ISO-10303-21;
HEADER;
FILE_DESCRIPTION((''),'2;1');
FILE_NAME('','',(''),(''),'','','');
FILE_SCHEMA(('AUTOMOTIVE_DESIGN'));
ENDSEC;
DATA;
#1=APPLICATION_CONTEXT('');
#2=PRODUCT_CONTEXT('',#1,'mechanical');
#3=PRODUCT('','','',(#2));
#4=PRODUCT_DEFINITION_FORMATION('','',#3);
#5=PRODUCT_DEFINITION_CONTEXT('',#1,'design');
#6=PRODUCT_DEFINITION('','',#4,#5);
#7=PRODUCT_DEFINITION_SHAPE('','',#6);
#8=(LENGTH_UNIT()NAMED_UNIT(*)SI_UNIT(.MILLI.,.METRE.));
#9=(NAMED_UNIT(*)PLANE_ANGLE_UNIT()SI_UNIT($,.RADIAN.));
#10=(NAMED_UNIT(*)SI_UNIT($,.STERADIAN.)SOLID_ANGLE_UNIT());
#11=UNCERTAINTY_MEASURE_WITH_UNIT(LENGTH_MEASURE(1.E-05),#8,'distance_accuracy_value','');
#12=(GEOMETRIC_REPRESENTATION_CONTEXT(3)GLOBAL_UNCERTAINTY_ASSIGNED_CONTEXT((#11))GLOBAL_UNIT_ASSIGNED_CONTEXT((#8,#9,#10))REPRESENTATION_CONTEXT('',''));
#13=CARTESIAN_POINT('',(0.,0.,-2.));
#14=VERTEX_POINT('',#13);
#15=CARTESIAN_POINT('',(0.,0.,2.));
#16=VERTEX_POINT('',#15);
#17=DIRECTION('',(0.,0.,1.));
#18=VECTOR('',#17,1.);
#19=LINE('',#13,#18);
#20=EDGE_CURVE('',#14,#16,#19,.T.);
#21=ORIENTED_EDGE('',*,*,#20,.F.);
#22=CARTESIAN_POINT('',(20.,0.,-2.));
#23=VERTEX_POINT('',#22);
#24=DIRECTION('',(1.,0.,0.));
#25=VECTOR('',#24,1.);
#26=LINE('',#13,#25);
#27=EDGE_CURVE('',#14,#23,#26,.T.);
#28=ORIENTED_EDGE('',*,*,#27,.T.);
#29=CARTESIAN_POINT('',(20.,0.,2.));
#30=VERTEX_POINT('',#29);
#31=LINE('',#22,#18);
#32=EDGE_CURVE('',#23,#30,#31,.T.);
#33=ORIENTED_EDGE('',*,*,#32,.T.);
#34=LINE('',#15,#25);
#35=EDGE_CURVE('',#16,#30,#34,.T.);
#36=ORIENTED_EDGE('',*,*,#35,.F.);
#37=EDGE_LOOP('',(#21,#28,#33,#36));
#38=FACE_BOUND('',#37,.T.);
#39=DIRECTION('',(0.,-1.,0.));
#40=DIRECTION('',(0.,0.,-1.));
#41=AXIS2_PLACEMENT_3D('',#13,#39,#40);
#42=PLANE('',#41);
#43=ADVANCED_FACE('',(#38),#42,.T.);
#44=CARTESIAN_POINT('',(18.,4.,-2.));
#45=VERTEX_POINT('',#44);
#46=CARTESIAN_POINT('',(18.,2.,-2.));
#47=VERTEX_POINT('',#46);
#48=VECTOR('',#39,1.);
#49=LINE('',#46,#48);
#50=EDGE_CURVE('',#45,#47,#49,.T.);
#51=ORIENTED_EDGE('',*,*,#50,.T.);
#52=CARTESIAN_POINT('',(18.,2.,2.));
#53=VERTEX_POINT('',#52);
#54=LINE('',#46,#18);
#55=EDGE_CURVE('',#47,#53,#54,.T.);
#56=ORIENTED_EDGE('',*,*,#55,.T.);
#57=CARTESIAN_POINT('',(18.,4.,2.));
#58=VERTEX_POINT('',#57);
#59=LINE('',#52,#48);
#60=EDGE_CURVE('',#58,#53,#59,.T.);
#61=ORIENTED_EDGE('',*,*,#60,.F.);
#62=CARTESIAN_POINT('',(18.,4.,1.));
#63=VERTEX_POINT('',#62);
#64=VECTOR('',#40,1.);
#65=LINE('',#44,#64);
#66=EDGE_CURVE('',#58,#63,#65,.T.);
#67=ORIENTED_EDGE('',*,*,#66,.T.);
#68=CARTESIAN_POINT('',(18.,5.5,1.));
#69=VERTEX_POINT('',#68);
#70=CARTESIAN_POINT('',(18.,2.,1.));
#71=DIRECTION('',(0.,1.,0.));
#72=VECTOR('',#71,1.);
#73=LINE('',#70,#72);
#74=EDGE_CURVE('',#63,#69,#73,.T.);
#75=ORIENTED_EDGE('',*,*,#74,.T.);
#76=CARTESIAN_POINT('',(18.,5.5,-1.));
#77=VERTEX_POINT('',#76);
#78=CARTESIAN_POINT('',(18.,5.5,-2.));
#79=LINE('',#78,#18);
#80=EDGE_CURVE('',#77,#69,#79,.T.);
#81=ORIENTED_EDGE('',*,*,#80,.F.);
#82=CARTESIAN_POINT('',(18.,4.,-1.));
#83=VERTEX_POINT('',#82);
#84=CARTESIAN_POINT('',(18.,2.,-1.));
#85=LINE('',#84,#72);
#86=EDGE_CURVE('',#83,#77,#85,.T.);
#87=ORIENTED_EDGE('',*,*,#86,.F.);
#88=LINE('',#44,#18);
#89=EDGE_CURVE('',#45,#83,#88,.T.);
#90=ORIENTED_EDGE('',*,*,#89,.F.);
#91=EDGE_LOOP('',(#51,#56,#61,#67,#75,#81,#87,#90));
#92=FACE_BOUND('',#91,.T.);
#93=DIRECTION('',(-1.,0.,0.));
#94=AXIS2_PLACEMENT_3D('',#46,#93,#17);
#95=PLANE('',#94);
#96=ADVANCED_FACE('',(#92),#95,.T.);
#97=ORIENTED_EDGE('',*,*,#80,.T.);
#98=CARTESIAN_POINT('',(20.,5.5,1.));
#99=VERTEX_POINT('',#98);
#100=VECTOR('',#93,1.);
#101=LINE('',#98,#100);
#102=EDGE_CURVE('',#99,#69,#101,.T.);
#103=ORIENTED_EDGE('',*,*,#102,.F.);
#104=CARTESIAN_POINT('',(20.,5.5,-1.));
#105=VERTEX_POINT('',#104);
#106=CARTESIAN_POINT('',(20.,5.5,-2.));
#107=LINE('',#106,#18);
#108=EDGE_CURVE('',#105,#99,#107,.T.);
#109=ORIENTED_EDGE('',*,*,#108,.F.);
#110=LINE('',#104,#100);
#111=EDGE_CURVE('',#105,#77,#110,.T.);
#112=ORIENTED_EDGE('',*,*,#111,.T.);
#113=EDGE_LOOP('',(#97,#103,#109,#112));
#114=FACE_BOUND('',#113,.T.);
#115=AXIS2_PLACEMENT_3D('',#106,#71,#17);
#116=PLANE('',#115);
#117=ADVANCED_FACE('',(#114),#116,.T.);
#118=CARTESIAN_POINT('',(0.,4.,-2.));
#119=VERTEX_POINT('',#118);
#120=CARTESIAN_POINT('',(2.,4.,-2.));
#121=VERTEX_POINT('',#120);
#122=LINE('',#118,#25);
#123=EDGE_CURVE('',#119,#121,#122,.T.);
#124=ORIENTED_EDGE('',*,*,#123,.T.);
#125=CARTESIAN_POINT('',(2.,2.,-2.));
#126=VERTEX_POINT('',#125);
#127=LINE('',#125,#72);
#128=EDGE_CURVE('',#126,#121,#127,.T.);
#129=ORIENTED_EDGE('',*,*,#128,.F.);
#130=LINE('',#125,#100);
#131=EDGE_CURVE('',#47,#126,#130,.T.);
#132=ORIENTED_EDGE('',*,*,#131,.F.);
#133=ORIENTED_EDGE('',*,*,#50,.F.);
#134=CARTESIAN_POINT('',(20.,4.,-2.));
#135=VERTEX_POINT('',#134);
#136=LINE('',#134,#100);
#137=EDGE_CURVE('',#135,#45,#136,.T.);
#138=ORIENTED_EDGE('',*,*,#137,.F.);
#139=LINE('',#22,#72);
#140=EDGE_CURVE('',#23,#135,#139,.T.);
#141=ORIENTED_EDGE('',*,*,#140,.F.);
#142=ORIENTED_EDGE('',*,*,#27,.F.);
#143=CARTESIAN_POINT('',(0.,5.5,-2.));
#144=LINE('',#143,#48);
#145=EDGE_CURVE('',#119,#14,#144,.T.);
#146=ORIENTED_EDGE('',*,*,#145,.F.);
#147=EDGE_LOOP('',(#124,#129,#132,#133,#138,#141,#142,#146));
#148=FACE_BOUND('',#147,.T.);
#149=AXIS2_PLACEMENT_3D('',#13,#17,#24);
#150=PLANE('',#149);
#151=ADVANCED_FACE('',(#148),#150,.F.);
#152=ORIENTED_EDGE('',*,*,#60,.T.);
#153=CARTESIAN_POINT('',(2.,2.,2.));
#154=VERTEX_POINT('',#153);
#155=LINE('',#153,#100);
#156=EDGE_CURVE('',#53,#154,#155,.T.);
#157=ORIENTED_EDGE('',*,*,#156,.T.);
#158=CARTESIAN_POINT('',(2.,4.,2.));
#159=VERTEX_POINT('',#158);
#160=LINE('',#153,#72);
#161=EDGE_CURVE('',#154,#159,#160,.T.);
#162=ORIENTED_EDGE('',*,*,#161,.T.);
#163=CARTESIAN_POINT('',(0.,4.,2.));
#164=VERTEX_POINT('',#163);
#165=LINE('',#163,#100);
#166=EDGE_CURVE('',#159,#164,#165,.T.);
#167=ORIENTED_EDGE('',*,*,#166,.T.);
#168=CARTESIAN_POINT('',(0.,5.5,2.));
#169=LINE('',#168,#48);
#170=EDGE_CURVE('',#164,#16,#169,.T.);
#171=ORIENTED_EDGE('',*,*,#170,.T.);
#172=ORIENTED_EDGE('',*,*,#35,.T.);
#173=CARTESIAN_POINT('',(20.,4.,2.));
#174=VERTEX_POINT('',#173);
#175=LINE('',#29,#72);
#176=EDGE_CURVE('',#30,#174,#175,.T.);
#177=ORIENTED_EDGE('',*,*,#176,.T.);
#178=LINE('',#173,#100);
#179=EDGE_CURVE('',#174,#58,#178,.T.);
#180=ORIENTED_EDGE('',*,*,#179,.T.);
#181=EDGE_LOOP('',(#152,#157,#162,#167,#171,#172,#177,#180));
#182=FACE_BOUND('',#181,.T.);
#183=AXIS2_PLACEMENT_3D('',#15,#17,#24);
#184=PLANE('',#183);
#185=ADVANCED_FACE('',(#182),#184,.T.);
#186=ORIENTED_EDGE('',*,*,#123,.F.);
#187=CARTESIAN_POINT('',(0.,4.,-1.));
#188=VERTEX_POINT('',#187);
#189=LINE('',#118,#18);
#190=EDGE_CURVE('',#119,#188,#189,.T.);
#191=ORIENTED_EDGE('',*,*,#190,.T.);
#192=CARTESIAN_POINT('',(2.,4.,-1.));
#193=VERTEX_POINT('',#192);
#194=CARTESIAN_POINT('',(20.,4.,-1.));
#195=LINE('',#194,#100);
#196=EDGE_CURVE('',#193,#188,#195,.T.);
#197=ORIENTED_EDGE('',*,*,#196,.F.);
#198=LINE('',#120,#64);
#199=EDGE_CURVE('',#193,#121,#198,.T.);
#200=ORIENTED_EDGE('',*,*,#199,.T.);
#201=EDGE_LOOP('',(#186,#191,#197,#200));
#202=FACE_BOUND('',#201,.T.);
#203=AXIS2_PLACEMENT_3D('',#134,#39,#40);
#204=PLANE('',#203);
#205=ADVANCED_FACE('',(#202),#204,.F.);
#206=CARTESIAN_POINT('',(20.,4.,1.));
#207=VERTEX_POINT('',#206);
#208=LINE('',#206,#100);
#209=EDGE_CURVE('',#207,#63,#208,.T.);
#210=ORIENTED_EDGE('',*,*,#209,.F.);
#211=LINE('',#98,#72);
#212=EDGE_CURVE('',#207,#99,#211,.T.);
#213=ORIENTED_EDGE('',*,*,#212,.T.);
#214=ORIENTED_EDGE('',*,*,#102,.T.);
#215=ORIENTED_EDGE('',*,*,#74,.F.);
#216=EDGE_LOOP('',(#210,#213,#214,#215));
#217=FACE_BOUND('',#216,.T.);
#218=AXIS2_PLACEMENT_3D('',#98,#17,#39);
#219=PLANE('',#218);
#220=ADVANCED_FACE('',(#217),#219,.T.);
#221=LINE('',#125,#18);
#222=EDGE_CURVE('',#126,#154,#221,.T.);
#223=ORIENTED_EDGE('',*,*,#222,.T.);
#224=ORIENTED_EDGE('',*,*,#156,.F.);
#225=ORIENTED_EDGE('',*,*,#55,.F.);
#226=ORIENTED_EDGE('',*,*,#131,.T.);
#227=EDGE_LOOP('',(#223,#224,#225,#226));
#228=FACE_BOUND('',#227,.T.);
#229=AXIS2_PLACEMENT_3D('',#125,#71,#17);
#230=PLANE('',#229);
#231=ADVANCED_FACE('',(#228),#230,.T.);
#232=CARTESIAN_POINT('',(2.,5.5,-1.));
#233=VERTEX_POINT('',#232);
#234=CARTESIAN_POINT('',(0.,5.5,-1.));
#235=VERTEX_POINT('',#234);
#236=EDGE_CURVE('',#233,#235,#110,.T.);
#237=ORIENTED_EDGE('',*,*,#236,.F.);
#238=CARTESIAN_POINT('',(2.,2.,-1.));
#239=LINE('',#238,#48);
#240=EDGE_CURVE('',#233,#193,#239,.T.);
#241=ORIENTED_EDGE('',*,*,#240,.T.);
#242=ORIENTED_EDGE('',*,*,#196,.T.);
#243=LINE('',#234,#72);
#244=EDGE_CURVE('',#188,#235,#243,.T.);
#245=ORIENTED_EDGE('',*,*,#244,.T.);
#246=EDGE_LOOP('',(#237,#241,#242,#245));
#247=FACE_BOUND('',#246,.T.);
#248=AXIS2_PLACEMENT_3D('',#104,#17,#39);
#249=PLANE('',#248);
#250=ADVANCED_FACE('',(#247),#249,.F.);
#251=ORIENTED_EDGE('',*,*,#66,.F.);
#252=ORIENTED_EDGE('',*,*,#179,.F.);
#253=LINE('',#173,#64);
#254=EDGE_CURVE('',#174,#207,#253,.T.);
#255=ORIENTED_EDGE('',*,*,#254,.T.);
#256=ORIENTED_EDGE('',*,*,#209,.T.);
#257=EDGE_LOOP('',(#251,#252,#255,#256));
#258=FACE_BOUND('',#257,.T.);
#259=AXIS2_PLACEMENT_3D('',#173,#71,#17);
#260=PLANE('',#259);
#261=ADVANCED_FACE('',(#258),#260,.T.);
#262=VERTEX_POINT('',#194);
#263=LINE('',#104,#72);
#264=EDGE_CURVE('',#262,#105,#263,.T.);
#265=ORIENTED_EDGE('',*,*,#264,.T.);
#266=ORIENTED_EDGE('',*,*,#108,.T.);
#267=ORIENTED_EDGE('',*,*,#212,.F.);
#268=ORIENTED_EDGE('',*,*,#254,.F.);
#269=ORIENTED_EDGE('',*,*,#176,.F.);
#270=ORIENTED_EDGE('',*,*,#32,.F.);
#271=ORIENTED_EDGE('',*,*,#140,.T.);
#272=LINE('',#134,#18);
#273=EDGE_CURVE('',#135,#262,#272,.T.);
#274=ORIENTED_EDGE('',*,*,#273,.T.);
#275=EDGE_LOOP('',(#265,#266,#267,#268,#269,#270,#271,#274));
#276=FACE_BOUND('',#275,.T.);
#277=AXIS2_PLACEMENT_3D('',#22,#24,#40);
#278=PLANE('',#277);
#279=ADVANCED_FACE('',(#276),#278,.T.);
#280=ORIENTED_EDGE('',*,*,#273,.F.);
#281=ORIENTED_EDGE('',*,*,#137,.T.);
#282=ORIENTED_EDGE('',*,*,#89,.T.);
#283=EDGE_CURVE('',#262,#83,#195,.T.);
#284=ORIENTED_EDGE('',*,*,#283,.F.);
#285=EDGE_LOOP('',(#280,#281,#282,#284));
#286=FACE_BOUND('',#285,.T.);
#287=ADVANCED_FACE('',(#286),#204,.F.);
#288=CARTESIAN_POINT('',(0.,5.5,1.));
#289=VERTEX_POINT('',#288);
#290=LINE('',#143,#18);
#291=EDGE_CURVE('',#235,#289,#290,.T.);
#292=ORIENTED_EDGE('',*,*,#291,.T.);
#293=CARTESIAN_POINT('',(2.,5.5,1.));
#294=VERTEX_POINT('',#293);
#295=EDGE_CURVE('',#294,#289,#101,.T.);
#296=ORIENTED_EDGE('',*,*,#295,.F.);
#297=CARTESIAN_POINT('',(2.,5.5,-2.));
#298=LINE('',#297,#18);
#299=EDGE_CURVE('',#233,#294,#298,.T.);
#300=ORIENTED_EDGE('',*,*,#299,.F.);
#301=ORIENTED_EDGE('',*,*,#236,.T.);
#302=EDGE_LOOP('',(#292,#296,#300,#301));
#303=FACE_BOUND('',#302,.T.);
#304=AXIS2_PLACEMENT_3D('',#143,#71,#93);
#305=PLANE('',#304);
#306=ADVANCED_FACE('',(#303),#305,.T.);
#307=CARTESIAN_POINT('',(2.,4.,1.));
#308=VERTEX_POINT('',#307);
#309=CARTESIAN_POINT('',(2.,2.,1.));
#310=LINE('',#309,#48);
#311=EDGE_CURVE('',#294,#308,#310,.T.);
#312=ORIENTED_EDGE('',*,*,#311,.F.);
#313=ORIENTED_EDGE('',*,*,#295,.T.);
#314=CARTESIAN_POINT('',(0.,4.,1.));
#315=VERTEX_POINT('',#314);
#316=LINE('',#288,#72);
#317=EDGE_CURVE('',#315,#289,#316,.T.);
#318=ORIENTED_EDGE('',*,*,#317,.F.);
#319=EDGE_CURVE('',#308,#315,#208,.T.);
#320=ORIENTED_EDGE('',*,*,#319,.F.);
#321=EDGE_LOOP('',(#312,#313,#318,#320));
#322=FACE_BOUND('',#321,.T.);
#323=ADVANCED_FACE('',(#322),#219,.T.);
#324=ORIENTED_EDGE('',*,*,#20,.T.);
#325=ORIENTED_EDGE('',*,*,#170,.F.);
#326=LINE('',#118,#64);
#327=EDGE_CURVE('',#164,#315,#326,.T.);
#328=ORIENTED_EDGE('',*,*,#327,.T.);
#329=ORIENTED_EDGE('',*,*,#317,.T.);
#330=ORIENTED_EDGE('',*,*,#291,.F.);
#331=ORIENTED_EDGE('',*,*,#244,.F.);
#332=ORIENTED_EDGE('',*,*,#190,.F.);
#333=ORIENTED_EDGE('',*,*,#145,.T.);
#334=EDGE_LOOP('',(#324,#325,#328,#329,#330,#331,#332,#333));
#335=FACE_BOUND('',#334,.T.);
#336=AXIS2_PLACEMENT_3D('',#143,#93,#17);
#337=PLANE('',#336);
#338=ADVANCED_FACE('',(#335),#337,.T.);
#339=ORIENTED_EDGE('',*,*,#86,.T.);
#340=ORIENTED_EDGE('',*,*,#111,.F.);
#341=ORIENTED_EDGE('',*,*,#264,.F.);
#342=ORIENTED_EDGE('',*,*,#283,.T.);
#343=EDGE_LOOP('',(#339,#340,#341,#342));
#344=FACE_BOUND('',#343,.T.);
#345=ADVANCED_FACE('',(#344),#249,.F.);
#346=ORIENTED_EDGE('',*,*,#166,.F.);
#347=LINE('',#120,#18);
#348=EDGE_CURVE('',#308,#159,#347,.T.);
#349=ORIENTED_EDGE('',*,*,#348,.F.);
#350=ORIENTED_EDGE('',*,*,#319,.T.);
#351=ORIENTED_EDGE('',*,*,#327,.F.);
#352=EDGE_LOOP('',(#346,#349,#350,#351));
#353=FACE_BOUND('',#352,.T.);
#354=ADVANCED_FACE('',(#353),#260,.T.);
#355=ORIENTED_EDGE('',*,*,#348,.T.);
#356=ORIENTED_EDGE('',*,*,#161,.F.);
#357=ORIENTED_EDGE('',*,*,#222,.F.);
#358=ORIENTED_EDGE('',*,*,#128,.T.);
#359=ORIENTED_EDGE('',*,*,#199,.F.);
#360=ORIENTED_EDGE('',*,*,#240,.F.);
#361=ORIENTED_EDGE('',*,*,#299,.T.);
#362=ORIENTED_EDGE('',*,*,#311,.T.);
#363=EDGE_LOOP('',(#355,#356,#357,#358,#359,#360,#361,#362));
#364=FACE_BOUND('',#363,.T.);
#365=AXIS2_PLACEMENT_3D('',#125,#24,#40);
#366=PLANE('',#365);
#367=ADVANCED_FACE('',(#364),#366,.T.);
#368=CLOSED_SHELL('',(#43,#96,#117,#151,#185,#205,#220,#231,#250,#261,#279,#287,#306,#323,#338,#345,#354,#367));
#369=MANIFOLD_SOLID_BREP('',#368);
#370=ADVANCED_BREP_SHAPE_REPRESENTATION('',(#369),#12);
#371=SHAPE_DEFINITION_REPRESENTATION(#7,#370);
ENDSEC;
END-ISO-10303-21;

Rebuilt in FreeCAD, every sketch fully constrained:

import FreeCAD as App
import Part
import Sketcher

V = App.Vector
Q = App.Units.Quantity

doc = App.newDocument("Part")
body = doc.addObject("PartDesign::Body", "Body")

sketch1 = body.newObject("Sketcher::SketchObject", "Sketch")
sketch1.AttachmentSupport = (doc.getObject("XY_Plane"), [""])
sketch1.MapMode = "FlatFace"
sketch1.addGeometry(Part.LineSegment(V(18, 2, 0), V(2, 2, 0)), False)
sketch1.addGeometry(Part.LineSegment(V(2, 2, 0), V(2, 5.5, 0)), False)
sketch1.addGeometry(Part.LineSegment(V(2, 5.5, 0), V(0, 5.5, 0)), False)
sketch1.addGeometry(Part.LineSegment(V(0, 5.5, 0), V(0, 0, 0)), False)
sketch1.addGeometry(Part.LineSegment(V(0, 0, 0), V(20, 0, 0)), False)
sketch1.addGeometry(Part.LineSegment(V(20, 0, 0), V(20, 5.5, 0)), False)
sketch1.addGeometry(Part.LineSegment(V(20, 5.5, 0), V(18, 5.5, 0)), False)
sketch1.addGeometry(Part.LineSegment(V(18, 5.5, 0), V(18, 2, 0)), False)
sketch1.addConstraint(Sketcher.Constraint("Coincident", 0, 2, 1, 1))
sketch1.addConstraint(Sketcher.Constraint("Coincident", 1, 2, 2, 1))
sketch1.addConstraint(Sketcher.Constraint("Coincident", 2, 2, 3, 1))
sketch1.addConstraint(Sketcher.Constraint("Coincident", 3, 2, 4, 1))
sketch1.addConstraint(Sketcher.Constraint("Coincident", 4, 2, 5, 1))
sketch1.addConstraint(Sketcher.Constraint("Coincident", 5, 2, 6, 1))
sketch1.addConstraint(Sketcher.Constraint("Coincident", 6, 2, 7, 1))
sketch1.addConstraint(Sketcher.Constraint("Coincident", 7, 2, 0, 1))
sketch1.addConstraint(Sketcher.Constraint("Horizontal", 0))
sketch1.addConstraint(Sketcher.Constraint("Vertical", 1))
sketch1.addConstraint(Sketcher.Constraint("Horizontal", 2))
sketch1.addConstraint(Sketcher.Constraint("Vertical", 3))
sketch1.addConstraint(Sketcher.Constraint("Horizontal", 4))
sketch1.addConstraint(Sketcher.Constraint("Vertical", 5))
sketch1.addConstraint(Sketcher.Constraint("Horizontal", 6))
sketch1.addConstraint(Sketcher.Constraint("Vertical", 7))
sketch1.addConstraint(Sketcher.Constraint("Coincident", 3, 2, -1, 1))
sketch1.addConstraint(Sketcher.Constraint("Horizontal", 2, 2, 5, 2))
sketch1.addConstraint(Sketcher.Constraint("Equal", 2, 6))
sketch1.addConstraint(Sketcher.Constraint("DistanceX", 0, 2, 0, 1, Q("16 mm")))
sketch1.addConstraint(Sketcher.Constraint("DistanceX", 2, 2, 2, 1, Q("2 mm")))
sketch1.addConstraint(Sketcher.Constraint("DistanceY", 1, 1, 1, 2, Q("3.5 mm")))
sketch1.addConstraint(Sketcher.Constraint("DistanceY", 3, 2, 3, 1, Q("5.5 mm")))
pad1 = body.newObject("PartDesign::Pad", "Pad")
pad1.Profile = sketch1
pad1.Type = "TwoLengths"
pad1.Length = 2
pad1.Length2 = 2

sketch2 = body.newObject("Sketcher::SketchObject", "Sketch001")
sketch2.AttachmentSupport = (doc.getObject("YZ_Plane"), [""])
sketch2.MapMode = "FlatFace"
sketch2.addGeometry(Part.LineSegment(V(5.5, -2, 0), V(4, -2, 0)), False)
sketch2.addGeometry(Part.LineSegment(V(4, -2, 0), V(4, -1, 0)), False)
sketch2.addGeometry(Part.LineSegment(V(4, -1, 0), V(5.5, -1, 0)), False)
sketch2.addGeometry(Part.LineSegment(V(5.5, -1, 0), V(5.5, -2, 0)), False)
sketch2.addConstraint(Sketcher.Constraint("Coincident", 0, 2, 1, 1))
sketch2.addConstraint(Sketcher.Constraint("Coincident", 1, 2, 2, 1))
sketch2.addConstraint(Sketcher.Constraint("Coincident", 2, 2, 3, 1))
sketch2.addConstraint(Sketcher.Constraint("Coincident", 3, 2, 0, 1))
sketch2.addConstraint(Sketcher.Constraint("Horizontal", 0))
sketch2.addConstraint(Sketcher.Constraint("Vertical", 1))
sketch2.addConstraint(Sketcher.Constraint("Horizontal", 2))
sketch2.addConstraint(Sketcher.Constraint("Vertical", 3))
sketch2.addConstraint(Sketcher.Constraint("DistanceY", 1, 1, 1, 2, Q("1 mm")))
sketch2.addConstraint(Sketcher.Constraint("DistanceX", 0, 2, 0, 1, Q("1.5 mm")))
sketch2.addConstraint(Sketcher.Constraint("DistanceX", -1, 1, 0, 2, Q("4 mm")))
sketch2.addConstraint(Sketcher.Constraint("DistanceY", 0, 2, -1, 1, Q("2 mm")))
pocket1 = body.newObject("PartDesign::Pocket", "Pocket")
pocket1.Profile = sketch2
pocket1.Length = 43.677332
pocket1.Midplane = True
doc.recompute()

mirrored = body.newObject("PartDesign::Mirrored", "Mirrored")
mirrored.Originals = [pocket1]
mirrored.MirrorPlane = (doc.getObject("XY_Plane"), [""])
body.Tip = mirrored

doc.recompute()
